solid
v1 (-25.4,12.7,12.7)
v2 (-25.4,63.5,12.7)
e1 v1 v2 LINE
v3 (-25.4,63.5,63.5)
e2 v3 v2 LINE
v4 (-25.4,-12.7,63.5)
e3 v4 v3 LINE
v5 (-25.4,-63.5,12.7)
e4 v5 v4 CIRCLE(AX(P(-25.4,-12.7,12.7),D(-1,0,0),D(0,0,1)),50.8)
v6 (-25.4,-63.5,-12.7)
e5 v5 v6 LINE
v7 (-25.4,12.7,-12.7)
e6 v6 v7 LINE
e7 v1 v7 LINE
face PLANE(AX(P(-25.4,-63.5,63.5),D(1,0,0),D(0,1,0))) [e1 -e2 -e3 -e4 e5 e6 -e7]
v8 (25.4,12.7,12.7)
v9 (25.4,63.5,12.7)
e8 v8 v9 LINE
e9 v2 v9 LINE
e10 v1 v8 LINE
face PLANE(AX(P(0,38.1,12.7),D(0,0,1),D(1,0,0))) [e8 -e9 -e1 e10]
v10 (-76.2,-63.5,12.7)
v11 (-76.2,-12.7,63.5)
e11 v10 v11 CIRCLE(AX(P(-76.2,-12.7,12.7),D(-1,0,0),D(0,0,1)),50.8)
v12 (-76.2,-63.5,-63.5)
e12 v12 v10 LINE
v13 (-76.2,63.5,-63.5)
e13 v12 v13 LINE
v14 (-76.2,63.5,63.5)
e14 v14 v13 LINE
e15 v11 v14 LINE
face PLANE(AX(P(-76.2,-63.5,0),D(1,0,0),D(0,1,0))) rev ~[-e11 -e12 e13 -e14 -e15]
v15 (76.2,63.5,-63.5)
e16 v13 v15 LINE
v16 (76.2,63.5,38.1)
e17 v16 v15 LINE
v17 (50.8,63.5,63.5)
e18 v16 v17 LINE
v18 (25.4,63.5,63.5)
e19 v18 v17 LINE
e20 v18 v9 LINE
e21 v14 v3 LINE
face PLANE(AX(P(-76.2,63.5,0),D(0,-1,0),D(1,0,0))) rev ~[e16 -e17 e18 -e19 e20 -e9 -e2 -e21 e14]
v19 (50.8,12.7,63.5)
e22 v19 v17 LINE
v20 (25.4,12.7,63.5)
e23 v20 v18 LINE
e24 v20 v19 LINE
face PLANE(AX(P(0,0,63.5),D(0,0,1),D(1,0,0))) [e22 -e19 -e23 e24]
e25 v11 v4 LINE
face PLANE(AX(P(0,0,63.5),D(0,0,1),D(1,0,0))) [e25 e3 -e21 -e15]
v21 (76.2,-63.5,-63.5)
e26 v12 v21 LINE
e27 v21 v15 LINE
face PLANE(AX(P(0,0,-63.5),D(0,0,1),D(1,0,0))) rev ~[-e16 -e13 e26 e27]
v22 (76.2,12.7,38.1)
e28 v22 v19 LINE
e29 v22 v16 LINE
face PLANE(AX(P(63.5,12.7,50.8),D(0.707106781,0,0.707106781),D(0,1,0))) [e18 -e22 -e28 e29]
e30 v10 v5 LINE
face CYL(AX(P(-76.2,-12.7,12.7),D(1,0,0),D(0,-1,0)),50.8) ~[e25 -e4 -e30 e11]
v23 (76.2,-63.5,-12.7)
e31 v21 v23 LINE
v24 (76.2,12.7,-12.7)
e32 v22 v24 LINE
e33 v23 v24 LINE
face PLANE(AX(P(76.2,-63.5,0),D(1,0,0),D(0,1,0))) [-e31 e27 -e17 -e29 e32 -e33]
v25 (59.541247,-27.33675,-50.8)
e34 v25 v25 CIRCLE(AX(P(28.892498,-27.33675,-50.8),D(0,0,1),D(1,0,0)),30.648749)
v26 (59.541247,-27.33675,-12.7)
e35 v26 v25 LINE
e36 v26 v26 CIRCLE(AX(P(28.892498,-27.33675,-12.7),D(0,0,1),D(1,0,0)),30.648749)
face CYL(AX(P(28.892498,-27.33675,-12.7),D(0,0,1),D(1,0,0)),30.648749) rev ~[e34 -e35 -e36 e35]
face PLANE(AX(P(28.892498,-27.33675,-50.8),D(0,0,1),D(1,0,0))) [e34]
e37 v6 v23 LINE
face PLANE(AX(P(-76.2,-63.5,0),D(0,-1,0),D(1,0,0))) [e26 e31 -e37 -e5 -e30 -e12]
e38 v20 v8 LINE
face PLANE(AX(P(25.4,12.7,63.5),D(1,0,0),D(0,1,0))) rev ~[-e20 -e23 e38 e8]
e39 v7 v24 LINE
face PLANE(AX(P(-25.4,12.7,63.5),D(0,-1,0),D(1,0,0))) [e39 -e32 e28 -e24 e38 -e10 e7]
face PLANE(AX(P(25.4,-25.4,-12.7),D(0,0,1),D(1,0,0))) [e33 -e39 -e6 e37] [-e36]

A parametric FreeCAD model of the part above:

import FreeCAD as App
import Part
import Sketcher
from FreeCAD import Vector
Q = App.Units.Quantity


def edges_at(feature, points):
    """Names of the edges that pass closest to the given points."""
    edges = feature.Shape.Edges
    near = lambda p: min(range(len(edges)), key=lambda i: edges[i].distToShape(Part.Vertex(*p))[0])
    return sorted({f"Edge{near(p) + 1}" for p in points})


def add_polygon(sketch, points):
    """Adds a closed chain of lines whose ends are joined by coincident constraints."""
    first, n = sketch.GeometryCount, len(points)
    for a, b in zip(points, points[1:] + points[:1]):
        sketch.addGeometry(Part.LineSegment(App.Vector(*a, 0), App.Vector(*b, 0)), False)
    for i in range(n):
        sketch.addConstraint(Sketcher.Constraint("Coincident", first + i, 2, first + (i + 1) % n, 1))

doc = App.newDocument("Part")
body = doc.addObject("PartDesign::Body", "Body")

sketch1 = body.newObject("Sketcher::SketchObject", "Sketch")
sketch1.AttachmentSupport = (doc.getObject("XY_Plane"), [""])
sketch1.MapMode = "FlatFace"
add_polygon(sketch1, [(-76.2, 63.5), (-76.2, -63.5), (76.2, -63.5), (76.2, 63.5)])
sketch1.addConstraint(Sketcher.Constraint("Vertical", 0))
sketch1.addConstraint(Sketcher.Constraint("Horizontal", 1))
sketch1.addConstraint(Sketcher.Constraint("Vertical", 2))
sketch1.addConstraint(Sketcher.Constraint("Horizontal", 3))
sketch1.addConstraint(Sketcher.Constraint("Symmetric", 0, 2, 2, 2, -1, 1))
sketch1.addConstraint(Sketcher.Constraint("DistanceX", 1, 1, 1, 2, Q("6 in")))
sketch1.addConstraint(Sketcher.Constraint("DistanceY", 0, 2, 0, 1, Q("5 in")))
pad1 = body.newObject("PartDesign::Pad", "Pad")
pad1.Profile = sketch1
pad1.Length = Q("5 in")
pad1.Midplane = True

sketch2 = body.newObject("Sketcher::SketchObject", "Sketch001")
sketch2.AttachmentSupport = (doc.getObject("XY_Plane"), [""])
sketch2.MapMode = "FlatFace"
sketch2.AttachmentOffset = App.Placement(Vector(0, 0, 2.5 * 25.4), App.Rotation())
add_polygon(sketch2, [(-25.4, 12.7), (-25.4, -63.5), (76.2, -63.5), (76.2, 12.7)])
sketch2.addConstraint(Sketcher.Constraint("Vertical", 0))
sketch2.addConstraint(Sketcher.Constraint("Horizontal", 1))
sketch2.addConstraint(Sketcher.Constraint("Vertical", 2))
sketch2.addConstraint(Sketcher.Constraint("Horizontal", 3))
sketch2.addConstraint(Sketcher.Constraint("DistanceX", 1, 1, 1, 2, Q("4 in")))
sketch2.addConstraint(Sketcher.Constraint("DistanceY", 0, 2, 0, 1, Q("3 in")))
sketch2.addConstraint(Sketcher.Constraint("DistanceX", 0, 2, -1, 1, Q("1 in")))
sketch2.addConstraint(Sketcher.Constraint("DistanceY", 0, 2, -1, 1, Q("2.5 in")))
pocket1 = body.newObject("PartDesign::Pocket", "Pocket")
pocket1.Profile = sketch2
pocket1.Length = Q("3 in")
doc.recompute()

fillet = body.newObject("PartDesign::Fillet", "Fillet")
fillet.Base = (pocket1, edges_at(pocket1, [(-50.8, -63.5, 63.5)]))
fillet.Radius = Q("2 in")

sketch3 = body.newObject("Sketcher::SketchObject", "Sketch002")
sketch3.AttachmentSupport = (doc.getObject("XY_Plane"), [""])
sketch3.MapMode = "FlatFace"
sketch3.AttachmentOffset = App.Placement(Vector(0, 0, -0.5 * 25.4), App.Rotation())
sketch3.addGeometry(Part.Circle(Vector(28.892498, -27.33675, 0), Vector(0, 0, 1), 30.648749), False)
sketch3.addConstraint(Sketcher.Constraint("Diameter", 0, Q("61.297498 mm")))
sketch3.addConstraint(Sketcher.Constraint("DistanceX", -1, 1, 0, 3, Q("1.1374999 in")))
sketch3.addConstraint(Sketcher.Constraint("DistanceY", 0, 3, -1, 1, Q("27.33675 mm")))
pocket2 = body.newObject("PartDesign::Pocket", "Pocket001")
pocket2.Profile = sketch3
pocket2.Length = Q("1.5 in")

sketch4 = body.newObject("Sketcher::SketchObject", "Sketch003")
sketch4.AttachmentSupport = (doc.getObject("XY_Plane"), [""])
sketch4.MapMode = "FlatFace"
sketch4.AttachmentOffset = App.Placement(Vector(0, 0, 2.5 * 25.4), App.Rotation())
add_polygon(sketch4, [(-25.4, 63.5), (-25.4, 12.7), (25.4, 12.7), (25.4, 63.5)])
sketch4.addConstraint(Sketcher.Constraint("Vertical", 0))
sketch4.addConstraint(Sketcher.Constraint("Horizontal", 1))
sketch4.addConstraint(Sketcher.Constraint("Vertical", 2))
sketch4.addConstraint(Sketcher.Constraint("Horizontal", 3))
sketch4.addConstraint(Sketcher.Constraint("Equal", 3, 0))
sketch4.addConstraint(Sketcher.Constraint("DistanceX", 1, 1, 1, 2, Q("2 in")))
sketch4.addConstraint(Sketcher.Constraint("DistanceX", 0, 2, -1, 1, Q("1 in")))
sketch4.addConstraint(Sketcher.Constraint("DistanceY", -1, 1, 0, 2, Q("0.5 in")))
pocket3 = body.newObject("PartDesign::Pocket", "Pocket002")
pocket3.Profile = sketch4
pocket3.Length = Q("2 in")
doc.recompute()

chamfer = body.newObject("PartDesign::Chamfer", "Chamfer")
chamfer.Base = (pocket3, edges_at(pocket3, [(76.2, 38.1, 63.5)]))
chamfer.Size = Q("1 in")

doc.recompute()
